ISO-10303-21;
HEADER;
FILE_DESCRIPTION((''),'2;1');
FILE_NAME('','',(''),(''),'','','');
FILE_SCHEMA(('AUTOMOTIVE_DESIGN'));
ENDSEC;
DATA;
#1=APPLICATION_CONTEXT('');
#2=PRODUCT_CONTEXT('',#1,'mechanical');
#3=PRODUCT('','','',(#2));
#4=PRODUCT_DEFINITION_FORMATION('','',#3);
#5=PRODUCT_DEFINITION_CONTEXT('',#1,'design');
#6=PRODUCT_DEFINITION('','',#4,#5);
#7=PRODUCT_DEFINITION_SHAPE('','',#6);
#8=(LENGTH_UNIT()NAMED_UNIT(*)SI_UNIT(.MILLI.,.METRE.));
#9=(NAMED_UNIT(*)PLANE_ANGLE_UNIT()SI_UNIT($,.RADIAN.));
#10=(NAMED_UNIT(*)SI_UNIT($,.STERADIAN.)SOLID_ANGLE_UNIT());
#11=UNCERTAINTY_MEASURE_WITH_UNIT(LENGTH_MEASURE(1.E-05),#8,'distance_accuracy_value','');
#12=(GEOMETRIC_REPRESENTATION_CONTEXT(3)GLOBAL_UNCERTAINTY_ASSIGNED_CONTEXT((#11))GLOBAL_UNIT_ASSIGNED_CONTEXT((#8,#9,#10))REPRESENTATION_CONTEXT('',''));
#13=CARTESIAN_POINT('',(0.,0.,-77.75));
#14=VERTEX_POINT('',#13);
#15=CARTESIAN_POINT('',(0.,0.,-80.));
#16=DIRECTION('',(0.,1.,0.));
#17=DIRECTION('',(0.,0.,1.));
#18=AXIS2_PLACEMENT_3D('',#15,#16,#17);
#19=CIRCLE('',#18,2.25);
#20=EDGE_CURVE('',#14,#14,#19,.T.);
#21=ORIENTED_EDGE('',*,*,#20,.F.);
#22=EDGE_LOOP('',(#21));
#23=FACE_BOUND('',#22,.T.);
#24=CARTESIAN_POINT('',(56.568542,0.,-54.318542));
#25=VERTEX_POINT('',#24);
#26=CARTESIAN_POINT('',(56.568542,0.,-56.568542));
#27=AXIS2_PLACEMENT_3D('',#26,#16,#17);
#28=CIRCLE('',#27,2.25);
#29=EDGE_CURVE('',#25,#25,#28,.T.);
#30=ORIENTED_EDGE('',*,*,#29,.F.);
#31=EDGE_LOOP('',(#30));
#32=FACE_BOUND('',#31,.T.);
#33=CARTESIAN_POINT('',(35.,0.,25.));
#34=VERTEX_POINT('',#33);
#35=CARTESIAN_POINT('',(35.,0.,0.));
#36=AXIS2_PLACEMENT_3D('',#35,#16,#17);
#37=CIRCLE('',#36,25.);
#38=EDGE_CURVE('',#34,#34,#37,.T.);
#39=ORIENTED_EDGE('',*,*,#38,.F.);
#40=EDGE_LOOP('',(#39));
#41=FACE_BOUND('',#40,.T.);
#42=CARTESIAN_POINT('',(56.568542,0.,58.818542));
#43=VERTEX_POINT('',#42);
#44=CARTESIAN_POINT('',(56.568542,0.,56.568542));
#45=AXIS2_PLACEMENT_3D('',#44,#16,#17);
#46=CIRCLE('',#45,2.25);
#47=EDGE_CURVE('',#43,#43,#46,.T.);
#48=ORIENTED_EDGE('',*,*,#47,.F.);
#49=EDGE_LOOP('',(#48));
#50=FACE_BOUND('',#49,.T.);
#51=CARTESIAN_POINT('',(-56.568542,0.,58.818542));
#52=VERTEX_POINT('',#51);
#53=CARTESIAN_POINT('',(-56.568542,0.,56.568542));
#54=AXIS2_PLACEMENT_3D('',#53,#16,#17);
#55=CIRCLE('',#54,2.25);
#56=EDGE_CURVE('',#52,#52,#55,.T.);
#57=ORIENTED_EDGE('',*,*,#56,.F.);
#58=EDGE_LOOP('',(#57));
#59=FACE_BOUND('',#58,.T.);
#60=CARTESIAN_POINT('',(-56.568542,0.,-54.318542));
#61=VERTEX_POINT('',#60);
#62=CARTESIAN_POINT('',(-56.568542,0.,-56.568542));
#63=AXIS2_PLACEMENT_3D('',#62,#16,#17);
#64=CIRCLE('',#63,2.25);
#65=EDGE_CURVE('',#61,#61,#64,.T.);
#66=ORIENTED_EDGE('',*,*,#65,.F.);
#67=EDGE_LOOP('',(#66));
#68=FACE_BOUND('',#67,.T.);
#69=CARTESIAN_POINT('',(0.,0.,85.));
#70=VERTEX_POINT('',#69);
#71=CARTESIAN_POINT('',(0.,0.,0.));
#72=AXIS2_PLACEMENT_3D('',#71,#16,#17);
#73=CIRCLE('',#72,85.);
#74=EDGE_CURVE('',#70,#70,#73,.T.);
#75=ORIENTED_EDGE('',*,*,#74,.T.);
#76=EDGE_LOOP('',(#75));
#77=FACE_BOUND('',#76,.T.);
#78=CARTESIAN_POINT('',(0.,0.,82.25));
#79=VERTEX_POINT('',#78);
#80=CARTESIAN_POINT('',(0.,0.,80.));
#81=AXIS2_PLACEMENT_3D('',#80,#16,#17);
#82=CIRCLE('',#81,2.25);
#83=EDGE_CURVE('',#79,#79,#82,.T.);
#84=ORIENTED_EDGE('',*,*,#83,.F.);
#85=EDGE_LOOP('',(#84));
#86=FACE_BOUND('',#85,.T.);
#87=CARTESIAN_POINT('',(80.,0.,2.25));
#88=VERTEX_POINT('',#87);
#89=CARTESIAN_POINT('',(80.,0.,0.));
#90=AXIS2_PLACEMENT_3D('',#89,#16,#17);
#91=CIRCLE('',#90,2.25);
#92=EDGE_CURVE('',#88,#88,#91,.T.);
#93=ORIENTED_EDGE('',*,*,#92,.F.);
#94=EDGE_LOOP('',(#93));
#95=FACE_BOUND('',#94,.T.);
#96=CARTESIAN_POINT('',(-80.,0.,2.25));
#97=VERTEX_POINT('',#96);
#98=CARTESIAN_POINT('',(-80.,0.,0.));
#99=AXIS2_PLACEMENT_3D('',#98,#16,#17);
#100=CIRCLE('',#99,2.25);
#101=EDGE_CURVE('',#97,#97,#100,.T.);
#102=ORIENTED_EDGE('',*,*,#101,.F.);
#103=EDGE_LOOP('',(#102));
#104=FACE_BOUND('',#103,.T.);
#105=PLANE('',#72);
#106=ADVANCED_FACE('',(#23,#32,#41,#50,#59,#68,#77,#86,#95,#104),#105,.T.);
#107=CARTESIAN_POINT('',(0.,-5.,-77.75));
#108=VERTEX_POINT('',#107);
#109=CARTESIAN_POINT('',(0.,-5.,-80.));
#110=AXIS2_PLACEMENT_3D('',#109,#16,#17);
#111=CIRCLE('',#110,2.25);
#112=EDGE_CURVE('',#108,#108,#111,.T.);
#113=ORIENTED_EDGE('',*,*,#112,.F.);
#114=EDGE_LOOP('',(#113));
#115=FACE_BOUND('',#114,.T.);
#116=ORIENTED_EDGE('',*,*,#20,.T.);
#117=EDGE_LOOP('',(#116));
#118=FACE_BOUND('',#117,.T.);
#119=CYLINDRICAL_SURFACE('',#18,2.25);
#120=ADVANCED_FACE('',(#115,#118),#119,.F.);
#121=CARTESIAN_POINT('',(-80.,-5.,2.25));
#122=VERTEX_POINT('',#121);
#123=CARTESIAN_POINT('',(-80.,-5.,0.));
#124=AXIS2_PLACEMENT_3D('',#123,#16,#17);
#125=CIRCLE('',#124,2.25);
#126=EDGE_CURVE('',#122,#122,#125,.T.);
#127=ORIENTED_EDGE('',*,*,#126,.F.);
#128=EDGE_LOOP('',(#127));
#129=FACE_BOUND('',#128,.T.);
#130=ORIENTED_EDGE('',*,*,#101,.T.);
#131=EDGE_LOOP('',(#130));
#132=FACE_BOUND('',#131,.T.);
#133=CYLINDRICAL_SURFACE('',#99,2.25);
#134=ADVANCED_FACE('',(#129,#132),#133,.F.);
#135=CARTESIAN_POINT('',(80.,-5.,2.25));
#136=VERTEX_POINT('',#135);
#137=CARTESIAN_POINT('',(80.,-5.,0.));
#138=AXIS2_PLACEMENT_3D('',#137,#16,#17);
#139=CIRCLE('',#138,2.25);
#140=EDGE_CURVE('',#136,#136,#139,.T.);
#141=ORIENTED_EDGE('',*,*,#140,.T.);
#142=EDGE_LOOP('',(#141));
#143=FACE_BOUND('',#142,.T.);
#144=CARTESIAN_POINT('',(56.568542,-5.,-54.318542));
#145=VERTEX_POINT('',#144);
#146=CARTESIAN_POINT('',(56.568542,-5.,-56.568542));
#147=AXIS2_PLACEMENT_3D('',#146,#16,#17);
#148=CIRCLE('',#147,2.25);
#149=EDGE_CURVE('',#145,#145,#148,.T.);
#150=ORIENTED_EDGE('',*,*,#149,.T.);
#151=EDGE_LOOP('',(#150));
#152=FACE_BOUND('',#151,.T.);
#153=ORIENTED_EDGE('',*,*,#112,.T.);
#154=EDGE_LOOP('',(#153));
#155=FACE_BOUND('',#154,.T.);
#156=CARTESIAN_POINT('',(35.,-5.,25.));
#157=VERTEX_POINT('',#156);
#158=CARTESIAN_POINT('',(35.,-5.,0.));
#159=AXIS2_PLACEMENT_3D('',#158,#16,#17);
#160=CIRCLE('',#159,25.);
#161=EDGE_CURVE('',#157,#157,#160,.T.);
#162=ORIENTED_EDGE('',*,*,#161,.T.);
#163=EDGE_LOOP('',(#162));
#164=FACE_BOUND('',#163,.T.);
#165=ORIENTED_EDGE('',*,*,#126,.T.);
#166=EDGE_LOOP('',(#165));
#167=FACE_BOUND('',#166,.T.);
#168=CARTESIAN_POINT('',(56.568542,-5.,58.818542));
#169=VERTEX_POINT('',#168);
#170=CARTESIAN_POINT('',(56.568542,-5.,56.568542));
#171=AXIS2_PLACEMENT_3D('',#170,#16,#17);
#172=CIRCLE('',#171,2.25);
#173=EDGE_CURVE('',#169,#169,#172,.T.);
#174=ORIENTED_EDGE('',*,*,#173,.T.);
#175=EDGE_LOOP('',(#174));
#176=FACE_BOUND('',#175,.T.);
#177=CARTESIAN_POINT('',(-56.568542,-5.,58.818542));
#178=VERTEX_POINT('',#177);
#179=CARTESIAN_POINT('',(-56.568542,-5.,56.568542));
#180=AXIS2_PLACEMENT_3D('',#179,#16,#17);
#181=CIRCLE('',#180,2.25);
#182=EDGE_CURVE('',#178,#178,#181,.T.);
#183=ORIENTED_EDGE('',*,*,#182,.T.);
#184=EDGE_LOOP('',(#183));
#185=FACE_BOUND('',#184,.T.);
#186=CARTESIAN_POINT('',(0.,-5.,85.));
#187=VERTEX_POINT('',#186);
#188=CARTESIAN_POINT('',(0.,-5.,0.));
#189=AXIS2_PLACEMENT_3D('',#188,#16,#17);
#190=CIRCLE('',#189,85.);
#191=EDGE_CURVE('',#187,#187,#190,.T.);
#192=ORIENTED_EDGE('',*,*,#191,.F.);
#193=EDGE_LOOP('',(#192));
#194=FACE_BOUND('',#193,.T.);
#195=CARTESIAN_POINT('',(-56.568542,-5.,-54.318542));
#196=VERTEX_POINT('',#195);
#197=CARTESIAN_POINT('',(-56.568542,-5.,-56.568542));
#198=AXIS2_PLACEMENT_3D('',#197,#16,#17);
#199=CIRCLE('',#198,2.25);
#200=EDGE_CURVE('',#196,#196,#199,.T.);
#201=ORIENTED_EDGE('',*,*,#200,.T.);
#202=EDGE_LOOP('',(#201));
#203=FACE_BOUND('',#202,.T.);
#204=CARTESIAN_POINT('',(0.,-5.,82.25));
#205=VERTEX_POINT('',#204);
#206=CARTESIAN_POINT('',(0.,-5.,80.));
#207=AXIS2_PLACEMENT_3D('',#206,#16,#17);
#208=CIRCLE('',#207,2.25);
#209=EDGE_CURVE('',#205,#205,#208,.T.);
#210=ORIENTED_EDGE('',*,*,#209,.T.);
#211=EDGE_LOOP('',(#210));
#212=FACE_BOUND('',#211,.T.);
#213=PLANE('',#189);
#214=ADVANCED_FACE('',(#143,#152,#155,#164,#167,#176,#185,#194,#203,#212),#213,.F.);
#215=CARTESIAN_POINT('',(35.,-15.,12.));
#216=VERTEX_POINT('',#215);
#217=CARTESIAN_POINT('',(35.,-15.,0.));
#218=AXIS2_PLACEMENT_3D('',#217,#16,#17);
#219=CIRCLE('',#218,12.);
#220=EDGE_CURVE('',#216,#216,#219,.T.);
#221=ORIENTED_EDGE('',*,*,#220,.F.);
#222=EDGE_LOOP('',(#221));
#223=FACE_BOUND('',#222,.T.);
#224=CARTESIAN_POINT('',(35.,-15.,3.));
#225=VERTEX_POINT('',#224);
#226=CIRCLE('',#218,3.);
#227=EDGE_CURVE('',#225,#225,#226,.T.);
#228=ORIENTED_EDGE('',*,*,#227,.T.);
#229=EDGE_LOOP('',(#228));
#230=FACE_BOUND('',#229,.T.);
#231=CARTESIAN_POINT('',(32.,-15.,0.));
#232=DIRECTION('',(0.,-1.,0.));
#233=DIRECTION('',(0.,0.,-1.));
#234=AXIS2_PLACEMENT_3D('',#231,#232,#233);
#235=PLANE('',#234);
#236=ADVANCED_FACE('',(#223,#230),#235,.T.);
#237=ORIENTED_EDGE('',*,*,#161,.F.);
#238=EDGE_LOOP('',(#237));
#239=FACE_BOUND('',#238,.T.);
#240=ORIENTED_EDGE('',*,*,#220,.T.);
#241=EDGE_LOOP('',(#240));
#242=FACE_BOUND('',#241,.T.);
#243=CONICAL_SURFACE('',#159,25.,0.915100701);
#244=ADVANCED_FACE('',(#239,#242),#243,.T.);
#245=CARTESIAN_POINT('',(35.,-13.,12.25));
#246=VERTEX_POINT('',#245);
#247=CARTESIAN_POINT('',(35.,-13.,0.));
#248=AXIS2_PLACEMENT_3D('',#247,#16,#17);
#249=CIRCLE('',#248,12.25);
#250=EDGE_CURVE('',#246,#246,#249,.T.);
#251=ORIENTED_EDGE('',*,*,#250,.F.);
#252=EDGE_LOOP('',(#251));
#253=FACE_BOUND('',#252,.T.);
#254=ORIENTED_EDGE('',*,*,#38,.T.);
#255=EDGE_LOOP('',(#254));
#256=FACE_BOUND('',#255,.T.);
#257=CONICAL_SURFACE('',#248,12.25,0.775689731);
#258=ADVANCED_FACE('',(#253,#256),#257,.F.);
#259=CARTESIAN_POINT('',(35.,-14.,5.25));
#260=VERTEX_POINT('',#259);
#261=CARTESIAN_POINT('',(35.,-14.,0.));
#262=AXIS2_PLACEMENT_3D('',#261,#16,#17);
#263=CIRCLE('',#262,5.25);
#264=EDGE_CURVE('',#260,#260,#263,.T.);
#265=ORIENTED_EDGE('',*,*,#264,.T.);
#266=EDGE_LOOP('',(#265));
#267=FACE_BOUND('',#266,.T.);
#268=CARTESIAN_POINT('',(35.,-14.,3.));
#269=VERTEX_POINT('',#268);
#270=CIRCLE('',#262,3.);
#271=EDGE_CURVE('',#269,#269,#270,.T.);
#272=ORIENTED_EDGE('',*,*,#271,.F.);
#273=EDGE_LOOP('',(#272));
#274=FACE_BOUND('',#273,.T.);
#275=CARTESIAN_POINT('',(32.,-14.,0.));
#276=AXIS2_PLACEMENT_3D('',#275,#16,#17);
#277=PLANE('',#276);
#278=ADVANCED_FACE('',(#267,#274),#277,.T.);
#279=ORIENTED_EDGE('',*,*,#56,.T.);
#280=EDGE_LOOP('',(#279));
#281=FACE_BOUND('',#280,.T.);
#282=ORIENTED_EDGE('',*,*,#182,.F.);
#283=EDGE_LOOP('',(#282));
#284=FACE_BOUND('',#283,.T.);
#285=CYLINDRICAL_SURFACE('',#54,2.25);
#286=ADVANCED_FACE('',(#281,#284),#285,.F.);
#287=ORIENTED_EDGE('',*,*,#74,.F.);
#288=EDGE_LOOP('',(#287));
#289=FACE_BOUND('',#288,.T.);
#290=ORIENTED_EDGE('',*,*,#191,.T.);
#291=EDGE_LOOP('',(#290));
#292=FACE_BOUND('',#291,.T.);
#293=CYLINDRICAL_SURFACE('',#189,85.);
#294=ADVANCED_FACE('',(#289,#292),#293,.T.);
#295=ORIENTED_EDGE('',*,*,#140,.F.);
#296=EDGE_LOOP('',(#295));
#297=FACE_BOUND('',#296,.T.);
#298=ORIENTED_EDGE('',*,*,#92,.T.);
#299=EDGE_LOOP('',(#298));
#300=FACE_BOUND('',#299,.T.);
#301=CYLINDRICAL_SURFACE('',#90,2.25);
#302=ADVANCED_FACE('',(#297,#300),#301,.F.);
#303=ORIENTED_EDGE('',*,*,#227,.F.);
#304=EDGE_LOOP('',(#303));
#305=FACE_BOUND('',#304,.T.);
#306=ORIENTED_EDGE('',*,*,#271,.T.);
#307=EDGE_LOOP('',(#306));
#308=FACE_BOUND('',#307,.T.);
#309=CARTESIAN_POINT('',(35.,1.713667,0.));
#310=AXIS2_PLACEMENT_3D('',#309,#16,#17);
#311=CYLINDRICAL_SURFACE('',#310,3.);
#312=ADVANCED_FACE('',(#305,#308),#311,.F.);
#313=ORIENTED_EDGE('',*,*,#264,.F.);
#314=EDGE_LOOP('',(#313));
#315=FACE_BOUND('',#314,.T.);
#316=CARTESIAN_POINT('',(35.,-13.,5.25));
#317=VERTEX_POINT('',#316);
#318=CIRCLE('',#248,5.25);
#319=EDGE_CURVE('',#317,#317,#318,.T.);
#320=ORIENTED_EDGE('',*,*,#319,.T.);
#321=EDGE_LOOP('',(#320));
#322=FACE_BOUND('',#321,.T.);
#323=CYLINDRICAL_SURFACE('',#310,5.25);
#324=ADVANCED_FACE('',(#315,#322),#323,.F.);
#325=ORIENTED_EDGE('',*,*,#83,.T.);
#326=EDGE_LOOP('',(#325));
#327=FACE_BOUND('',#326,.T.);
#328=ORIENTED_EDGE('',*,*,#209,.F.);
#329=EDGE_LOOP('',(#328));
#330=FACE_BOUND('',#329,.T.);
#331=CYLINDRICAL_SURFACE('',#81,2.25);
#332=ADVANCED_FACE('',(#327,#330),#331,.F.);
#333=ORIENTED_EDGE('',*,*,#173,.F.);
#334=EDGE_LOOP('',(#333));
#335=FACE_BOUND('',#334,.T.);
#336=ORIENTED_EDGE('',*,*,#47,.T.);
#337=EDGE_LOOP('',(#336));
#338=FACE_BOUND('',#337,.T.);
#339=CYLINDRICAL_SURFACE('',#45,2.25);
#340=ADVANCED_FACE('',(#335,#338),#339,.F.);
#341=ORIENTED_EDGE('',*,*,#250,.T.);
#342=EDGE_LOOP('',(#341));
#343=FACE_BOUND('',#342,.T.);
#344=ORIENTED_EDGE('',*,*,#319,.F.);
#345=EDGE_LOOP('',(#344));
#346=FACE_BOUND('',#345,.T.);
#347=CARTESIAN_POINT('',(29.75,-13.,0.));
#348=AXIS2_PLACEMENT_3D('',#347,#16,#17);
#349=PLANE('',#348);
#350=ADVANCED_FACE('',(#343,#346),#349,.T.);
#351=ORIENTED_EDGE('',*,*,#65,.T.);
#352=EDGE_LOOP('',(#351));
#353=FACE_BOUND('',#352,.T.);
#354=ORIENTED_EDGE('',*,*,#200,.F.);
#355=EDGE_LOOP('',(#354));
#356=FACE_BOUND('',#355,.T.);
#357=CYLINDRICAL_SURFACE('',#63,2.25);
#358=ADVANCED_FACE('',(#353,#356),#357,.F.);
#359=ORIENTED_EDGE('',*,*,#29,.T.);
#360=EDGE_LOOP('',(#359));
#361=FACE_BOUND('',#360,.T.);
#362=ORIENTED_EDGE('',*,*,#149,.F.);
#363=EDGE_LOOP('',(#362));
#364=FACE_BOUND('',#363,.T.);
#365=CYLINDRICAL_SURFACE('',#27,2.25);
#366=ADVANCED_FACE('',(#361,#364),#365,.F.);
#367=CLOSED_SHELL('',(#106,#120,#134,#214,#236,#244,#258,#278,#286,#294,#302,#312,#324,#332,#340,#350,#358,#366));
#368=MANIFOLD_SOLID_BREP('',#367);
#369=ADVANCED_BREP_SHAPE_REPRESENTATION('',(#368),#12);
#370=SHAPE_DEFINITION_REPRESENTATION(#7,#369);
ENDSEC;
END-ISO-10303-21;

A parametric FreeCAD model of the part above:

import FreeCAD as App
import Part
import Sketcher

V = App.Vector

doc = App.newDocument("Part")
body = doc.addObject("PartDesign::Body", "Body")

# Sketch on XY plane
sketch1 = body.newObject("Sketcher::SketchObject", "Sketch")
sketch1.AttachmentSupport = (doc.getObject("XY_Plane"), [""])
sketch1.MapMode = "FlatFace"
sketch1.addGeometry([
    Part.LineSegment(V(32, -15, 0), V(32, -14, 0)),  # 0
    Part.LineSegment(V(32, -14, 0), V(29.8, -14, 0)),  # 1
    Part.LineSegment(V(29.8, -14, 0), V(29.8, -13, 0)),  # 2
    Part.LineSegment(V(29.8, -13, 0), V(22.8, -13, 0)),  # 3
    Part.LineSegment(V(22.8, -13, 0), V(10, 0, 0)),  # 4
    Part.LineSegment(V(10, 0, 0), V(10, -5, 0)),  # 5
    Part.LineSegment(V(10, -5, 0), V(23, -15, 0)),  # 6
    Part.LineSegment(V(23, -15, 0), V(32, -15, 0)),  # 7
], False)
sketch1.addGeometry(Part.LineSegment(V(35, 0, 0), V(35, -15, 0)), True)  # axis
sketch1.addConstraint([
    Sketcher.Constraint("Coincident", 0, 2, 1, 1),
    Sketcher.Constraint("Coincident", 1, 2, 2, 1),
    Sketcher.Constraint("Coincident", 2, 2, 3, 1),
    Sketcher.Constraint("Coincident", 3, 2, 4, 1),
    Sketcher.Constraint("Coincident", 4, 2, 5, 1),
    Sketcher.Constraint("Coincident", 5, 2, 6, 1),
    Sketcher.Constraint("Coincident", 6, 2, 7, 1),
    Sketcher.Constraint("Coincident", 7, 2, 0, 1),
    Sketcher.Constraint("Vertical", 0),
    Sketcher.Constraint("Horizontal", 1),
    Sketcher.Constraint("Vertical", 2),
    Sketcher.Constraint("Horizontal", 3),
    Sketcher.Constraint("Vertical", 5),
    Sketcher.Constraint("Horizontal", 7),
    Sketcher.Constraint("Vertical", 8),
    Sketcher.Constraint("PointOnObject", 4, 2, -1),
    Sketcher.Constraint("PointOnObject", 8, 1, -1),
    Sketcher.Constraint("Horizontal", 7, 2, 8, 2),
    Sketcher.Constraint("Equal", 0, 2),
    Sketcher.Constraint("DistanceX", 3, 2, 3, 1, 7.0),
    Sketcher.Constraint("DistanceX", 7, 1, 7, 2, 9.0),
    Sketcher.Constraint("DistanceY", 0, 1, 0, 2, 1.0),
    Sketcher.Constraint("DistanceY", 5, 2, 5, 1, 5.0),
    Sketcher.Constraint("DistanceY", 8, 2, 8, 1, 15.0),
    Sketcher.Constraint("DistanceX", -1, 1, 0, 2, 32.0),
    Sketcher.Constraint("DistanceX", -1, 1, 4, 2, 10.0),
    Sketcher.Constraint("DistanceX", -1, 1, 8, 1, 35.0),
    Sketcher.Constraint("DistanceX", 1, 2, 1, 1, 2.25),
])
revolution = body.newObject("PartDesign::Revolution", "Revolution")
revolution.Profile = sketch1
revolution.ReferenceAxis = (sketch1, ["Axis0"])
revolution.Angle = 360

# Sketch on XZ plane
sketch2 = body.newObject("Sketcher::SketchObject", "Sketch001")
sketch2.AttachmentSupport = (doc.getObject("XZ_Plane"), [""])
sketch2.MapMode = "FlatFace"
sketch2.AttachmentOffset = App.Placement(V(0, 0, 5), App.Rotation())
sketch2.addGeometry([
    Part.Circle(V(0, 0, 0), V(0, 0, 1), 85),
    Part.Circle(V(35, 0, 0), V(0, 0, 1), 25),
], False)
sketch2.addConstraint([
    Sketcher.Constraint("Coincident", 0, 3, -1, 1),
    Sketcher.Constraint("PointOnObject", 1, 3, -1),
    Sketcher.Constraint("Diameter", 0, 170.0),
    Sketcher.Constraint("Diameter", 1, 50.0),
    Sketcher.Constraint("DistanceX", -1, 1, 1, 3, 35.0),
])
pad1 = body.newObject("PartDesign::Pad", "Pad")
pad1.Profile = sketch2
pad1.Length = 5
pad1.Reversed = True

# Sketch on XZ plane
sketch3 = body.newObject("Sketcher::SketchObject", "Sketch002")
sketch3.AttachmentSupport = (doc.getObject("XZ_Plane"), [""])
sketch3.MapMode = "FlatFace"
sketch3.addGeometry([
    Part.Circle(V(80, 0, 0), V(0, 0, 1), 2.2),  # 0
    Part.Circle(V(-80, 0, 0), V(0, 0, 1), 2.2),  # 1
    Part.Circle(V(-56.6, -56.6, 0), V(0, 0, 1), 2.2),  # 2
    Part.Circle(V(0, -80, 0), V(0, 0, 1), 2.2),  # 3
    Part.Circle(V(56.6, 56.6, 0), V(0, 0, 1), 2.2),  # 4
    Part.Circle(V(0, 80, 0), V(0, 0, 1), 2.2),  # 5
    Part.Circle(V(-56.6, 56.6, 0), V(0, 0, 1), 2.2),  # 6
    Part.Circle(V(56.6, -56.6, 0), V(0, 0, 1), 2.2),  # 7
], False)
sketch3.addConstraint([
    Sketcher.Constraint("Equal", 0, 1),
    Sketcher.Constraint("Equal", 1, 2),
    Sketcher.Constraint("Equal", 2, 3),
    Sketcher.Constraint("Equal", 3, 4),
    Sketcher.Constraint("Equal", 4, 5),
    Sketcher.Constraint("Equal", 5, 6),
    Sketcher.Constraint("Equal", 6, 7),
    Sketcher.Constraint("Symmetric", 0, 3, 1, 3, -1, 1),
    Sketcher.Constraint("Symmetric", 2, 3, 4, 3, -1, 1),
    Sketcher.Constraint("Symmetric", 3, 3, 5, 3, -1, 1),
    Sketcher.Constraint("Symmetric", 6, 3, 7, 3, -1, 1),
    Sketcher.Constraint("Symmetric", 4, 3, 6, 3, -2),
    Sketcher.Constraint("PointOnObject", 0, 3, -1),
    Sketcher.Constraint("PointOnObject", 3, 3, -2),
    Sketcher.Constraint("Diameter", 0, 4.5),
    Sketcher.Constraint("DistanceX", -1, 1, 0, 3, 80.0),
    Sketcher.Constraint("DistanceY", 3, 3, -1, 1, 80.0),
    Sketcher.Constraint("DistanceX", 2, 3, -1, 1, 56.568542),
    Sketcher.Constraint("DistanceY", 2, 3, -1, 1, 56.568542),
])
doc.recompute()
hole = body.newObject("PartDesign::Hole", "Hole")
hole.Profile = sketch3
hole.ThreadType = "None"
hole.Diameter = 4.5
hole.DepthType = "ThroughAll"
hole.Reversed = True

doc.recompute()
